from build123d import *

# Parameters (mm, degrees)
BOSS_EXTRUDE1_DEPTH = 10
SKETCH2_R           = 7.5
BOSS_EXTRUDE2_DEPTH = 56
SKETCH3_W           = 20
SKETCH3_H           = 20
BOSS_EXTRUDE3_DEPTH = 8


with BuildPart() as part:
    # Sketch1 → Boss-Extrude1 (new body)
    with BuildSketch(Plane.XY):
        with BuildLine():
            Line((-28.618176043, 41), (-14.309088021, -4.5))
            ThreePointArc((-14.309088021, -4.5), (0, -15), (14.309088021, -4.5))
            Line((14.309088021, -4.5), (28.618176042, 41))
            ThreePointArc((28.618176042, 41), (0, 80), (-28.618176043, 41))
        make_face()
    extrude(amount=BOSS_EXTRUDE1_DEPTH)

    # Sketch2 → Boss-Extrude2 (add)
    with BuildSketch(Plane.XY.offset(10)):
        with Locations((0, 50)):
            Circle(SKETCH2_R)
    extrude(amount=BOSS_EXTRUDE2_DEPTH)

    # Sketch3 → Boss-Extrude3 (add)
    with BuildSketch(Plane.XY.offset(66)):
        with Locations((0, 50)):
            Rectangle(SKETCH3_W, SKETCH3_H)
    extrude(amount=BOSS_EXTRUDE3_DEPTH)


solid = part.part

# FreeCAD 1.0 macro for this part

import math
import FreeCAD as App
import Part
import Sketcher
Q = App.Units.Quantity

doc = App.newDocument("Part")
params = doc.addObject("Spreadsheet::Sheet", "Params")
for row, (alias, value) in enumerate([
    ("sketch1_radius", "15 mm"),
    ("sketch1_radius2", "30 mm"),
    ("pad1_length", "10 mm"),
    ("sketch2_diameter", "15 mm"),
    ("pad2_length", "56 mm"),
    ("sketch3_width", "20 mm"),
    ("pad3_length", "8 mm"),
], start=1):
    params.set(f"A{row}", alias)
    params.set(f"B{row}", "=" + value)
    params.setAlias(f"B{row}", alias)

body = doc.addObject("PartDesign::Body", "Body")

sketch1 = body.newObject("Sketcher::SketchObject", "Sketch")
sketch1.AttachmentSupport = (doc.getObject("XY_Plane"), [""])
sketch1.MapMode = "FlatFace"
sketch1.addGeometry([
    Part.LineSegment(App.Vector(-29, 41, 0), App.Vector(-14, -4, 0)),
    Part.ArcOfCircle(Part.Circle(App.Vector(0, 0, 0), App.Vector(0, 0, 1), 15), math.radians(-163), math.radians(-17)),
    Part.LineSegment(App.Vector(14, -4, 0), App.Vector(29, 41, 0)),
    Part.ArcOfCircle(Part.Circle(App.Vector(0, 50, 0), App.Vector(0, 0, 1), 30), math.radians(-17), math.radians(197)),
], False)
sketch1.addConstraint([
    Sketcher.Constraint("Tangent", 0, 2, 1, 1),
    Sketcher.Constraint("Tangent", 1, 2, 2, 1),
    Sketcher.Constraint("Tangent", 2, 2, 3, 1),
    Sketcher.Constraint("Tangent", 3, 2, 0, 1),
    Sketcher.Constraint("Coincident", 1, 3, -1, 1),
    Sketcher.Constraint("PointOnObject", 3, 3, -2),
    Sketcher.Constraint("Radius", 1, Q("15 mm")),
    Sketcher.Constraint("Radius", 3, Q("30 mm")),
    Sketcher.Constraint("DistanceY", -1, 1, 3, 3, Q("50 mm")),
])
sketch1.setExpression("Constraints[6]", "Params.sketch1_radius")
sketch1.setExpression("Constraints[7]", "Params.sketch1_radius2")
pad1 = body.newObject("PartDesign::Pad", "Pad")
pad1.Profile = sketch1
pad1.setExpression("Length", "Params.pad1_length")

sketch2 = body.newObject("Sketcher::SketchObject", "Sketch001")
sketch2.AttachmentSupport = (doc.getObject("XY_Plane"), [""])
sketch2.MapMode = "FlatFace"
sketch2.AttachmentOffset = App.Placement(App.Vector(0, 0, 10), App.Rotation())
sketch2.addGeometry(Part.Circle(App.Vector(0, 50, 0), App.Vector(0, 0, 1), 8), False)
sketch2.addConstraint([
    Sketcher.Constraint("PointOnObject", 0, 3, -2),
    Sketcher.Constraint("Diameter", 0, Q("15 mm")),
    Sketcher.Constraint("DistanceY", -1, 1, 0, 3, Q("50 mm")),
])
sketch2.setExpression("Constraints[1]", "Params.sketch2_diameter")
pad2 = body.newObject("PartDesign::Pad", "Pad001")
pad2.Profile = sketch2
pad2.setExpression("Length", "Params.pad2_length")

sketch3 = body.newObject("Sketcher::SketchObject", "Sketch002")
sketch3.AttachmentSupport = (doc.getObject("XY_Plane"), [""])
sketch3.MapMode = "FlatFace"
sketch3.AttachmentOffset = App.Placement(App.Vector(0, 0, 66), App.Rotation())
sketch3.addGeometry([
    Part.LineSegment(App.Vector(-10, 60, 0), App.Vector(-10, 40, 0)),
    Part.LineSegment(App.Vector(-10, 40, 0), App.Vector(10, 40, 0)),
    Part.LineSegment(App.Vector(10, 40, 0), App.Vector(10, 60, 0)),
    Part.LineSegment(App.Vector(10, 60, 0), App.Vector(-10, 60, 0)),
], False)
sketch3.addConstraint([
    Sketcher.Constraint("Coincident", 0, 2, 1, 1),
    Sketcher.Constraint("Coincident", 1, 2, 2, 1),
    Sketcher.Constraint("Coincident", 2, 2, 3, 1),
    Sketcher.Constraint("Coincident", 3, 2, 0, 1),
    Sketcher.Constraint("Vertical", 0),
    Sketcher.Constraint("Horizontal", 1),
    Sketcher.Constraint("Vertical", 2),
    Sketcher.Constraint("Horizontal", 3),
    Sketcher.Constraint("Equal", 3, 0),
    Sketcher.Constraint("DistanceX", 1, 1, 1, 2, Q("20 mm")),
    Sketcher.Constraint("DistanceX", 0, 2, -1, 1, Q("10 mm")),
    Sketcher.Constraint("DistanceY", -1, 1, 0, 2, Q("40 mm")),
])
sketch3.setExpression("Constraints[9]", "Params.sketch3_width")
pad3 = body.newObject("PartDesign::Pad", "Pad002")
pad3.Profile = sketch3
pad3.setExpression("Length", "Params.pad3_length")

doc.recompute()
